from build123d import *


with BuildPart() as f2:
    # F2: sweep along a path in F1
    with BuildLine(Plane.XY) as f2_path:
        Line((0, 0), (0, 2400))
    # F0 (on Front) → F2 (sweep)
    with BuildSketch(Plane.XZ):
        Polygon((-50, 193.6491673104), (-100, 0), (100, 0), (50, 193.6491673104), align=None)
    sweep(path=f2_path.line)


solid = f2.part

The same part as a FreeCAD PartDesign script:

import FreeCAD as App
import Part
import Sketcher
Q = App.Units.Quantity

doc = App.newDocument("Part")
body = doc.addObject("PartDesign::Body", "Body")

sketch1 = body.newObject("Sketcher::SketchObject", "Sketch")
sketch1.AttachmentSupport = (doc.getObject("XZ_Plane"), [""])
sketch1.MapMode = "FlatFace"
sketch1.addGeometry([
    Part.LineSegment(App.Vector(-50, 194, 0), App.Vector(-100, 0, 0)),
    Part.LineSegment(App.Vector(-100, 0, 0), App.Vector(100, 0, 0)),
    Part.LineSegment(App.Vector(100, 0, 0), App.Vector(50, 194, 0)),
    Part.LineSegment(App.Vector(50, 194, 0), App.Vector(-50, 194, 0)),
], False)
sketch1.addConstraint([
    Sketcher.Constraint("Coincident", 0, 2, 1, 1),
    Sketcher.Constraint("Coincident", 1, 2, 2, 1),
    Sketcher.Constraint("Coincident", 2, 2, 3, 1),
    Sketcher.Constraint("Coincident", 3, 2, 0, 1),
    Sketcher.Constraint("Horizontal", 1),
    Sketcher.Constraint("Horizontal", 3),
    Sketcher.Constraint("Symmetric", 0, 2, 1, 2, -1, 1),
    Sketcher.Constraint("Equal", 0, 2),
    Sketcher.Constraint("DistanceX", 1, 1, 1, 2, Q("200 mm")),
    Sketcher.Constraint("DistanceX", 3, 2, 3, 1, Q("100 mm")),
    Sketcher.Constraint("Distance", 0, Q("200 mm")),
])

sketch2 = body.newObject("Sketcher::SketchObject", "Sketch001")
sketch2.AttachmentSupport = (doc.getObject("XY_Plane"), [""])
sketch2.MapMode = "FlatFace"
sketch2.addGeometry(Part.LineSegment(App.Vector(0, 0, 0), App.Vector(0, 2400, 0)), False)
sketch2.addConstraint([
    Sketcher.Constraint("Vertical", 0),
    Sketcher.Constraint("Coincident", 0, 1, -1, 1),
    Sketcher.Constraint("DistanceY", 0, 1, 0, 2, Q("2400 mm")),
])
doc.recompute()

additivepipe = body.newObject("PartDesign::AdditivePipe", "AdditivePipe")
additivepipe.Profile = sketch1
additivepipe.Spine = (sketch2, ["Edge1"])

doc.recompute()
